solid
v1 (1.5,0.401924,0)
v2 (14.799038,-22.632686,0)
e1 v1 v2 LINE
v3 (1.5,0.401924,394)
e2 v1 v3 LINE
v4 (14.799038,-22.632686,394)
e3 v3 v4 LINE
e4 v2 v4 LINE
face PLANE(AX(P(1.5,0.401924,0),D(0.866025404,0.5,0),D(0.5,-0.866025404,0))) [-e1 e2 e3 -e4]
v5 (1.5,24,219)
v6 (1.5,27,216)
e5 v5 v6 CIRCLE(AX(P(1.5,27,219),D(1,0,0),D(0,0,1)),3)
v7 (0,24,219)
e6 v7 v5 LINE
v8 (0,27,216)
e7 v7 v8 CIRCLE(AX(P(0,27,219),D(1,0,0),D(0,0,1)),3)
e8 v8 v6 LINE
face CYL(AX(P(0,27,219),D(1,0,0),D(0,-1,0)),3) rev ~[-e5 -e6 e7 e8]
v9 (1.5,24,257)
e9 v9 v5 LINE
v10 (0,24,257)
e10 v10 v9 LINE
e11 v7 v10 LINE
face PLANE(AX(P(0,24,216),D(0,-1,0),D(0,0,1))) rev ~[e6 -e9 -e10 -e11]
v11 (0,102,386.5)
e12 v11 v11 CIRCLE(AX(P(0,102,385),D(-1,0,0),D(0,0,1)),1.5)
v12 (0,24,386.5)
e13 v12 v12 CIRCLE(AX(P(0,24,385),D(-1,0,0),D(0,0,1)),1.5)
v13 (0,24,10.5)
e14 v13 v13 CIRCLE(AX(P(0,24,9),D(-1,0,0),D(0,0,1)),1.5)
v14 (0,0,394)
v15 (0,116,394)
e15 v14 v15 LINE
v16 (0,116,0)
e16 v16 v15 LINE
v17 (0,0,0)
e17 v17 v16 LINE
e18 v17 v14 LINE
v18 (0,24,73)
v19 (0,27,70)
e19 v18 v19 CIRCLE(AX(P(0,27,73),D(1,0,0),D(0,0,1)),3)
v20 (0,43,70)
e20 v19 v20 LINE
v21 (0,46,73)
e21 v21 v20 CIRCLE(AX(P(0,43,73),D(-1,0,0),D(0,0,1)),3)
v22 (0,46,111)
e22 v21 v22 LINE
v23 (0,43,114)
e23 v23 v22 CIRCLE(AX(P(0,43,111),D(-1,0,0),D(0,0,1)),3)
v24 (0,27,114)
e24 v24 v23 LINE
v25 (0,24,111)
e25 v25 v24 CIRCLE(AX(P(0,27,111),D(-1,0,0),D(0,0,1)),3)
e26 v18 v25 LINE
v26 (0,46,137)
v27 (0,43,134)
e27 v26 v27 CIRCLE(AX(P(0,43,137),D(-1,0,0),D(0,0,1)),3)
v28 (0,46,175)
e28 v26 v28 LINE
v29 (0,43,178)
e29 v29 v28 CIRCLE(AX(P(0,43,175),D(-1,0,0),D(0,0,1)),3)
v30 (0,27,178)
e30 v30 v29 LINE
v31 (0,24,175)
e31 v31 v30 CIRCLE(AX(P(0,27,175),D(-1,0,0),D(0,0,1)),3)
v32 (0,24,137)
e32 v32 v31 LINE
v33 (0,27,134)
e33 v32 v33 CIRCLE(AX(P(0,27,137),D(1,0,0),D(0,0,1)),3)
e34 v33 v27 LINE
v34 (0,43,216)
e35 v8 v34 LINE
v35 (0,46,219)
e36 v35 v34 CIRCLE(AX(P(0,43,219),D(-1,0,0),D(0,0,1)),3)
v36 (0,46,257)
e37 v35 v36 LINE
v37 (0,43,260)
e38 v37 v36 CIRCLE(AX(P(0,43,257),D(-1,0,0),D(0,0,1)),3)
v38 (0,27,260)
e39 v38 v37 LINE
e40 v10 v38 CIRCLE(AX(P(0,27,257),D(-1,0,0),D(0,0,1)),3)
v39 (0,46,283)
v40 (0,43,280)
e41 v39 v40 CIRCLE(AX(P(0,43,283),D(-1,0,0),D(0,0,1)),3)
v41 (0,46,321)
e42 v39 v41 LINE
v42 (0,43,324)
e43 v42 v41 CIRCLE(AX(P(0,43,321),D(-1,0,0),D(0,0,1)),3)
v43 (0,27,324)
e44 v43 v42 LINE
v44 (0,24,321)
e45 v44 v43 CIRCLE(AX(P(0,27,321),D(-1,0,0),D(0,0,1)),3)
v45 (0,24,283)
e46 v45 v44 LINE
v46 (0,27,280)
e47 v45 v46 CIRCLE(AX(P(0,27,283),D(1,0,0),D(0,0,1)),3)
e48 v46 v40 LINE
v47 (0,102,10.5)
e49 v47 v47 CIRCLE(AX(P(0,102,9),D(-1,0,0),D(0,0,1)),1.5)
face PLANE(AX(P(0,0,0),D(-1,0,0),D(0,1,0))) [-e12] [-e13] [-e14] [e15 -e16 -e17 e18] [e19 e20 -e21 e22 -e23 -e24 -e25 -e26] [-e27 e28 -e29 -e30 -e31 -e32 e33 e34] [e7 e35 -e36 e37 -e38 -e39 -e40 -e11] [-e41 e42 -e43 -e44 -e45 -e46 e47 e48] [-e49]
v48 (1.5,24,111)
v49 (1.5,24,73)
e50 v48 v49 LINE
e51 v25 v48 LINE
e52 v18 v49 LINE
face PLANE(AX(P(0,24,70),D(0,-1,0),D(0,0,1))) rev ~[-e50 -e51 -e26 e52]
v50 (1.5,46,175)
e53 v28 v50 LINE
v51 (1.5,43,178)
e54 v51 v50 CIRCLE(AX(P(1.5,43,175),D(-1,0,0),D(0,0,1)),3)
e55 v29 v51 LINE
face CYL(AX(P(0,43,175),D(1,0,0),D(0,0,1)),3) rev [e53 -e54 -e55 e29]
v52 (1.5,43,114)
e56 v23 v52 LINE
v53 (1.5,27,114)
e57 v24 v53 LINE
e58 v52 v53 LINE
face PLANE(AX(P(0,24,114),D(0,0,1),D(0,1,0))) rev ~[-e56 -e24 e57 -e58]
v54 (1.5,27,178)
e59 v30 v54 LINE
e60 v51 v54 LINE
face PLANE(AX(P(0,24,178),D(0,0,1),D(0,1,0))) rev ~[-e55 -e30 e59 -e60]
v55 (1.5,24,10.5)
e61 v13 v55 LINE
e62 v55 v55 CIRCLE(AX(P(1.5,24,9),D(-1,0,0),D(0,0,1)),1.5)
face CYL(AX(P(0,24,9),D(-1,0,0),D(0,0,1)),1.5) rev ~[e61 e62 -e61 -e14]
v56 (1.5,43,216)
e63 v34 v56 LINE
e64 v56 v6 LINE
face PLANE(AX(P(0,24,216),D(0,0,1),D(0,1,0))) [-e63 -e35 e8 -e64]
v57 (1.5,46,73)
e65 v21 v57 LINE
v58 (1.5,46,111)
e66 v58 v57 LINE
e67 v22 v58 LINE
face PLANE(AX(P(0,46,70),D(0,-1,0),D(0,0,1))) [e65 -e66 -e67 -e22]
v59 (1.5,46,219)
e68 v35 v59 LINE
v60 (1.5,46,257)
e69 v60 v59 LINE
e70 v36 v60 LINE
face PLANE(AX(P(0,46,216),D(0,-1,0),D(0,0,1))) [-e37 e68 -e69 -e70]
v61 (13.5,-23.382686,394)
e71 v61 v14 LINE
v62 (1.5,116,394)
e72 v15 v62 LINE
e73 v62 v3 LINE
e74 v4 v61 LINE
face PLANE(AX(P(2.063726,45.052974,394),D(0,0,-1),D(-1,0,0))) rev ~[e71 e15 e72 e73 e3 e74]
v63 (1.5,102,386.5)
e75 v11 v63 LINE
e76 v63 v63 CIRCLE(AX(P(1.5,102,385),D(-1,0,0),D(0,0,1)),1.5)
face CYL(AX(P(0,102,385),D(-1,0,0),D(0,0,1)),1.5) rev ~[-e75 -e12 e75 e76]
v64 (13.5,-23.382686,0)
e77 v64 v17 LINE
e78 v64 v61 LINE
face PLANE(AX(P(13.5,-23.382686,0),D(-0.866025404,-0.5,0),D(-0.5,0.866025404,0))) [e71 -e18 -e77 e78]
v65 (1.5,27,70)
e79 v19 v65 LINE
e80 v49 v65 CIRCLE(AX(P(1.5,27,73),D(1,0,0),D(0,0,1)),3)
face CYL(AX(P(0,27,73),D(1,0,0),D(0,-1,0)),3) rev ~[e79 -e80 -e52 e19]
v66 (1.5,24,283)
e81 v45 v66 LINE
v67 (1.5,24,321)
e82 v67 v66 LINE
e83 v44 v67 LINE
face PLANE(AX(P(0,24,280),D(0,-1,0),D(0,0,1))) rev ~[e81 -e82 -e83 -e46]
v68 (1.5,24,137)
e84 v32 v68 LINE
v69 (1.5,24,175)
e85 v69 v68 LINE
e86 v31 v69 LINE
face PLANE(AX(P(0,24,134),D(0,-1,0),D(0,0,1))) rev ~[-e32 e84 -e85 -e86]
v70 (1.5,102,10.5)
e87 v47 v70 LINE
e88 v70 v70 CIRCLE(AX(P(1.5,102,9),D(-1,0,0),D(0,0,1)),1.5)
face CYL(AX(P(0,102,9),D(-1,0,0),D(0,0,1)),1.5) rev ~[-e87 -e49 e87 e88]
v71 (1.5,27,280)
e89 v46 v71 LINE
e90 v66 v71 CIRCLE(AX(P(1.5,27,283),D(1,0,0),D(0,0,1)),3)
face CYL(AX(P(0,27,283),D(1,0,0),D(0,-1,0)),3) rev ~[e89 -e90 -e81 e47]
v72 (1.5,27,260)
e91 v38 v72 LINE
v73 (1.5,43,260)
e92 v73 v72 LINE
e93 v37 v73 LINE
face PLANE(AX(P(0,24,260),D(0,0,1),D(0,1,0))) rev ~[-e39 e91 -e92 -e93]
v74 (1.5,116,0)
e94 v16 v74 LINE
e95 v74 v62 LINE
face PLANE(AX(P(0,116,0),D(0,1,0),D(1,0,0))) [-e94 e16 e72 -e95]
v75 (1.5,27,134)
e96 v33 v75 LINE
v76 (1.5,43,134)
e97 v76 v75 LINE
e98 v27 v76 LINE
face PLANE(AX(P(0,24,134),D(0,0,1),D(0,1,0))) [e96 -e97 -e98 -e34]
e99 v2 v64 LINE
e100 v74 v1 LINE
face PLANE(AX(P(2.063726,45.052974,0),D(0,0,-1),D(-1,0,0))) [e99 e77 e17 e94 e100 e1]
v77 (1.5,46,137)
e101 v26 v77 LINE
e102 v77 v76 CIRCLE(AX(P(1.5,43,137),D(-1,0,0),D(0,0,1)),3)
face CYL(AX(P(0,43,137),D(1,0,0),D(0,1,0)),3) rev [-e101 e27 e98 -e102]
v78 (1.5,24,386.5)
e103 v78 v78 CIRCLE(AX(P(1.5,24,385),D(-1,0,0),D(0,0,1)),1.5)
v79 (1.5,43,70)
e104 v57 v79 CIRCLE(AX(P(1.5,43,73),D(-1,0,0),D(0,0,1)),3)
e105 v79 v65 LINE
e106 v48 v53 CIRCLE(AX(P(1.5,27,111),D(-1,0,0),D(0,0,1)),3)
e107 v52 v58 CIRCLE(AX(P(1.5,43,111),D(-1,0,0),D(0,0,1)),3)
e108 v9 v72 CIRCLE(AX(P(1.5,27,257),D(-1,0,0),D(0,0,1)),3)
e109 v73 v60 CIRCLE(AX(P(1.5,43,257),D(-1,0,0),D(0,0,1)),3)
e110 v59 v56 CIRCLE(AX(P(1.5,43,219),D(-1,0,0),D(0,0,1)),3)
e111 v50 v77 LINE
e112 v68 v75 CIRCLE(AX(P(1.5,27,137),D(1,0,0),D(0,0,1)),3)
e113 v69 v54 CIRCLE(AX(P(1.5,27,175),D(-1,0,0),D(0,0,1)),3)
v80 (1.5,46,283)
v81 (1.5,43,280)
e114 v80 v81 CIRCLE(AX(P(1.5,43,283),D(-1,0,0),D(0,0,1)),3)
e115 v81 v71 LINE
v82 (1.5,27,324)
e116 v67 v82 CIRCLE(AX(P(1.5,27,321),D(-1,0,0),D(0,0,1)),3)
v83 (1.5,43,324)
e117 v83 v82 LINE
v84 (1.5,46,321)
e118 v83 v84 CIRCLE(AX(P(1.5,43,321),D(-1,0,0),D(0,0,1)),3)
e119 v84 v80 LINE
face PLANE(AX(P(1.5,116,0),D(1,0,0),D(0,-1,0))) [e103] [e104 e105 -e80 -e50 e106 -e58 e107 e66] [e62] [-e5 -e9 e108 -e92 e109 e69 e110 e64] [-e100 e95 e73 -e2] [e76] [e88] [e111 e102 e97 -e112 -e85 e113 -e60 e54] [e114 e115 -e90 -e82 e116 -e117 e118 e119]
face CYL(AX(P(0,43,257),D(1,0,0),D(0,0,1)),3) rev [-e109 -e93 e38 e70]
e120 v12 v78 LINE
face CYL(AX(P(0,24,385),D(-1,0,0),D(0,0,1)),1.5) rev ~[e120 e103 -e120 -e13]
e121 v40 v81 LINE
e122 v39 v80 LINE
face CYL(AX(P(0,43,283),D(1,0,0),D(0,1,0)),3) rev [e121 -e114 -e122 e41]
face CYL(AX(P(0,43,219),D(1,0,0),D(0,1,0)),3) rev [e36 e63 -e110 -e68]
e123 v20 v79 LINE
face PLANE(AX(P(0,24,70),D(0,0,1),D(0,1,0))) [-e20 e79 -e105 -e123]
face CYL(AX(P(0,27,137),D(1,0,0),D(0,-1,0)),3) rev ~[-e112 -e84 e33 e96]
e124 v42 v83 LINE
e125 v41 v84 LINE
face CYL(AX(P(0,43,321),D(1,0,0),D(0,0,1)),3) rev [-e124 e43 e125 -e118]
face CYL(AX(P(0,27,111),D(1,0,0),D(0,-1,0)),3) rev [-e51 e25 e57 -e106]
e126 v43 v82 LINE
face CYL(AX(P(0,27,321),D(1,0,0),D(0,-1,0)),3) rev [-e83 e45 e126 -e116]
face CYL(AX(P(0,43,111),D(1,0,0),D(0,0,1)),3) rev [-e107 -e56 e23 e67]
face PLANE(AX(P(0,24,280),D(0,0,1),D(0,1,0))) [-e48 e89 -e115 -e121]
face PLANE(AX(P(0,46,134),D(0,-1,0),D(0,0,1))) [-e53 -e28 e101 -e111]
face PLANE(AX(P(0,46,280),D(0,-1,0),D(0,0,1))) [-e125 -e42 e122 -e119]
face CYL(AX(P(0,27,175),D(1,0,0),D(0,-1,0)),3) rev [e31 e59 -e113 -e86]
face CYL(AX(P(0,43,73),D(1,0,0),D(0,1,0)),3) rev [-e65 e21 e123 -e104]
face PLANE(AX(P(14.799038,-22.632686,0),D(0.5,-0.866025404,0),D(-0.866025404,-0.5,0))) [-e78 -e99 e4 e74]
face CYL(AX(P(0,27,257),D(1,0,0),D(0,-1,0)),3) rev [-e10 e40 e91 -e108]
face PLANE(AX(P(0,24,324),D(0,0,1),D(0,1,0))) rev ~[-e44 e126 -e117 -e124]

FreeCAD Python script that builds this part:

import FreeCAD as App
import Part
import Sketcher

V = App.Vector
Q = App.Units.Quantity


def edges_at(feature, points):
    """Names of the edges that pass closest to the given points."""
    edges = feature.Shape.Edges
    near = lambda p: min(range(len(edges)), key=lambda i: edges[i].distToShape(Part.Vertex(*p))[0])
    return sorted({f"Edge{near(p) + 1}" for p in points})

doc = App.newDocument("Part")
body = doc.addObject("PartDesign::Body", "Body")

sketch1 = doc.addObject("Sketcher::SketchObject", "Sketch")
body.addObject(sketch1)
sketch1.AttachmentSupport = (doc.XY_Plane, [""])
sketch1.MapMode = "FlatFace"
sketch1.addGeometry(Part.LineSegment(V(0, 116, 0), V(0, 0, 0)), False)
sketch1.addGeometry(Part.LineSegment(V(0, 0, 0), V(13.5, -23.4, 0)), False)
sketch1.addGeometry(Part.LineSegment(V(13.5, -23.4, 0), V(14.8, -22.6, 0)), False)
sketch1.addGeometry(Part.LineSegment(V(14.8, -22.6, 0), V(1.5, 0.4, 0)), False)
sketch1.addGeometry(Part.LineSegment(V(1.5, 0.4, 0), V(1.5, 116, 0)), False)
sketch1.addGeometry(Part.LineSegment(V(1.5, 116, 0), V(0, 116, 0)), False)
sketch1.addConstraint(Sketcher.Constraint("Coincident", 0, 2, 1, 1))
sketch1.addConstraint(Sketcher.Constraint("Coincident", 1, 2, 2, 1))
sketch1.addConstraint(Sketcher.Constraint("Coincident", 2, 2, 3, 1))
sketch1.addConstraint(Sketcher.Constraint("Coincident", 3, 2, 4, 1))
sketch1.addConstraint(Sketcher.Constraint("Coincident", 4, 2, 5, 1))
sketch1.addConstraint(Sketcher.Constraint("Coincident", 5, 2, 0, 1))
sketch1.addConstraint(Sketcher.Constraint("Vertical", 0))
sketch1.addConstraint(Sketcher.Constraint("Vertical", 4))
sketch1.addConstraint(Sketcher.Constraint("Horizontal", 5))
sketch1.addConstraint(Sketcher.Constraint("Coincident", 0, 2, -1, 1))
sketch1.addConstraint(Sketcher.Constraint("Perpendicular", 1, 2))
sketch1.addConstraint(Sketcher.Constraint("Perpendicular", 2, 3))
sketch1.addConstraint(Sketcher.Constraint("DistanceY", 0, 2, 0, 1, 116.0))
sketch1.addConstraint(Sketcher.Constraint("Angle", 1, Q("-60 deg")))
sketch1.addConstraint(Sketcher.Constraint("Distance", 1, 27.0))
sketch1.addConstraint(Sketcher.Constraint("DistanceX", 5, 2, 5, 1, 1.5))
sketch1.addConstraint(Sketcher.Constraint("Distance", 2, 1.5))
pad1 = doc.addObject("PartDesign::Pad", "Pad")
body.addObject(pad1)
pad1.Profile = sketch1
pad1.Length = 394

sketch2 = doc.addObject("Sketcher::SketchObject", "Sketch001")
body.addObject(sketch2)
sketch2.AttachmentSupport = (doc.YZ_Plane, [""])
sketch2.MapMode = "FlatFace"
sketch2.addGeometry(Part.Circle(V(24, 385, 0), V(0, 0, 1), 1.5), False)
sketch2.addGeometry(Part.Circle(V(102, 385, 0), V(0, 0, 1), 1.5), False)
sketch2.addGeometry(Part.Circle(V(102, 9, 0), V(0, 0, 1), 1.5), False)
sketch2.addGeometry(Part.Circle(V(24, 9, 0), V(0, 0, 1), 1.5), False)
sketch2.addGeometry(Part.LineSegment(V(46, 134, 0), V(24, 134, 0)), False)
sketch2.addGeometry(Part.LineSegment(V(24, 134, 0), V(24, 178, 0)), False)
sketch2.addGeometry(Part.LineSegment(V(24, 178, 0), V(46, 178, 0)), False)
sketch2.addGeometry(Part.LineSegment(V(46, 178, 0), V(46, 134, 0)), False)
sketch2.addGeometry(Part.LineSegment(V(46, 216, 0), V(24, 216, 0)), False)
sketch2.addGeometry(Part.LineSegment(V(24, 216, 0), V(24, 260, 0)), False)
sketch2.addGeometry(Part.LineSegment(V(24, 260, 0), V(46, 260, 0)), False)
sketch2.addGeometry(Part.LineSegment(V(46, 260, 0), V(46, 216, 0)), False)
sketch2.addGeometry(Part.LineSegment(V(46, 280, 0), V(24, 280, 0)), False)
sketch2.addGeometry(Part.LineSegment(V(24, 280, 0), V(24, 324, 0)), False)
sketch2.addGeometry(Part.LineSegment(V(24, 324, 0), V(46, 324, 0)), False)
sketch2.addGeometry(Part.LineSegment(V(46, 324, 0), V(46, 280, 0)), False)
sketch2.addGeometry(Part.LineSegment(V(46, 70, 0), V(24, 70, 0)), False)
sketch2.addGeometry(Part.LineSegment(V(24, 70, 0), V(24, 114, 0)), False)
sketch2.addGeometry(Part.LineSegment(V(24, 114, 0), V(46, 114, 0)), False)
sketch2.addGeometry(Part.LineSegment(V(46, 114, 0), V(46, 70, 0)), False)
sketch2.addConstraint(Sketcher.Constraint("Coincident", 4, 2, 5, 1))
sketch2.addConstraint(Sketcher.Constraint("Coincident", 5, 2, 6, 1))
sketch2.addConstraint(Sketcher.Constraint("Coincident", 6, 2, 7, 1))
sketch2.addConstraint(Sketcher.Constraint("Coincident", 7, 2, 4, 1))
sketch2.addConstraint(Sketcher.Constraint("Coincident", 8, 2, 9, 1))
sketch2.addConstraint(Sketcher.Constraint("Coincident", 9, 2, 10, 1))
sketch2.addConstraint(Sketcher.Constraint("Coincident", 10, 2, 11, 1))
sketch2.addConstraint(Sketcher.Constraint("Coincident", 11, 2, 8, 1))
sketch2.addConstraint(Sketcher.Constraint("Coincident", 12, 2, 13, 1))
sketch2.addConstraint(Sketcher.Constraint("Coincident", 13, 2, 14, 1))
sketch2.addConstraint(Sketcher.Constraint("Coincident", 14, 2, 15, 1))
sketch2.addConstraint(Sketcher.Constraint("Coincident", 15, 2, 12, 1))
sketch2.addConstraint(Sketcher.Constraint("Coincident", 16, 2, 17, 1))
sketch2.addConstraint(Sketcher.Constraint("Coincident", 17, 2, 18, 1))
sketch2.addConstraint(Sketcher.Constraint("Coincident", 18, 2, 19, 1))
sketch2.addConstraint(Sketcher.Constraint("Coincident", 19, 2, 16, 1))
sketch2.addConstraint(Sketcher.Constraint("Horizontal", 4))
sketch2.addConstraint(Sketcher.Constraint("Vertical", 5))
sketch2.addConstraint(Sketcher.Constraint("Horizontal", 6))
sketch2.addConstraint(Sketcher.Constraint("Vertical", 7))
sketch2.addConstraint(Sketcher.Constraint("Horizontal", 8))
sketch2.addConstraint(Sketcher.Constraint("Vertical", 9))
sketch2.addConstraint(Sketcher.Constraint("Horizontal", 10))
sketch2.addConstraint(Sketcher.Constraint("Vertical", 11))
sketch2.addConstraint(Sketcher.Constraint("Horizontal", 12))
sketch2.addConstraint(Sketcher.Constraint("Vertical", 13))
sketch2.addConstraint(Sketcher.Constraint("Horizontal", 14))
sketch2.addConstraint(Sketcher.Constraint("Vertical", 15))
sketch2.addConstraint(Sketcher.Constraint("Horizontal", 16))
sketch2.addConstraint(Sketcher.Constraint("Vertical", 17))
sketch2.addConstraint(Sketcher.Constraint("Horizontal", 18))
sketch2.addConstraint(Sketcher.Constraint("Vertical", 19))
sketch2.addConstraint(Sketcher.Constraint("Equal", 0, 1))
sketch2.addConstraint(Sketcher.Constraint("Equal", 1, 2))
sketch2.addConstraint(Sketcher.Constraint("Equal", 2, 3))
sketch2.addConstraint(Sketcher.Constraint("Horizontal", 0, 3, 1, 3))
sketch2.addConstraint(Sketcher.Constraint("Horizontal", 2, 3, 3, 3))
sketch2.addConstraint(Sketcher.Constraint("Vertical", 1, 3, 2, 3))
sketch2.addConstraint(Sketcher.Constraint("Vertical", 0, 3, 3, 3))
sketch2.addConstraint(Sketcher.Constraint("Vertical", 3, 3, 4, 2))
sketch2.addConstraint(Sketcher.Constraint("Vertical", 5, 2, 8, 2))
sketch2.addConstraint(Sketcher.Constraint("Vertical", 7, 2, 10, 2))
sketch2.addConstraint(Sketcher.Constraint("Vertical", 9, 2, 12, 2))
sketch2.addConstraint(Sketcher.Constraint("Vertical", 11, 2, 14, 2))
sketch2.addConstraint(Sketcher.Constraint("Vertical", 13, 2, 16, 2))
sketch2.addConstraint(Sketcher.Constraint("Vertical", 15, 2, 18, 2))
sketch2.addConstraint(Sketcher.Constraint("Equal", 7, 9))
sketch2.addConstraint(Sketcher.Constraint("Equal", 11, 13))
sketch2.addConstraint(Sketcher.Constraint("Equal", 15, 17))
sketch2.addConstraint(Sketcher.Constraint("Diameter", 0, 3.0))
sketch2.addConstraint(Sketcher.Constraint("DistanceX", 4, 2, 4, 1, 22.0))
sketch2.addConstraint(Sketcher.Constraint("DistanceY", 5, 1, 5, 2, 44.0))
sketch2.addConstraint(Sketcher.Constraint("DistanceX", -1, 1, 0, 3, 24.0))
sketch2.addConstraint(Sketcher.Constraint("DistanceY", -1, 1, 0, 3, 385.0))
sketch2.addConstraint(Sketcher.Constraint("DistanceX", -1, 1, 1, 3, 102.0))
sketch2.addConstraint(Sketcher.Constraint("DistanceY", -1, 1, 2, 3, 9.0))
sketch2.addConstraint(Sketcher.Constraint("DistanceY", -1, 1, 4, 2, 134.0))
sketch2.addConstraint(Sketcher.Constraint("DistanceY", -1, 1, 8, 2, 216.0))
sketch2.addConstraint(Sketcher.Constraint("DistanceY", -1, 1, 12, 2, 280.0))
sketch2.addConstraint(Sketcher.Constraint("DistanceY", -1, 1, 16, 2, 70.0))
pocket1 = doc.addObject("PartDesign::Pocket", "Pocket")
body.addObject(pocket1)
pocket1.Profile = sketch2
pocket1.Type = "ThroughAll"
pocket1.Reversed = True
doc.recompute()

fillet = doc.addObject("PartDesign::Fillet", "Fillet")
body.addObject(fillet)
fillet.Base = (pocket1, edges_at(pocket1, [
    (0.75, 24, 216),
    (0.75, 46, 216),
    (0.75, 46, 260),
    (0.75, 24, 260),
    (0.75, 24, 280),
    (0.75, 46, 280),
    (0.75, 46, 324),
    (0.75, 24, 324),
    (0.75, 46, 178),
    (0.75, 24, 178),
    (0.75, 24, 134),
    (0.75, 46, 134),
    (0.75, 46, 70),
    (0.75, 46, 114),
    (0.75, 24, 114),
    (0.75, 24, 70),
]))
fillet.Radius = 3

doc.recompute()
